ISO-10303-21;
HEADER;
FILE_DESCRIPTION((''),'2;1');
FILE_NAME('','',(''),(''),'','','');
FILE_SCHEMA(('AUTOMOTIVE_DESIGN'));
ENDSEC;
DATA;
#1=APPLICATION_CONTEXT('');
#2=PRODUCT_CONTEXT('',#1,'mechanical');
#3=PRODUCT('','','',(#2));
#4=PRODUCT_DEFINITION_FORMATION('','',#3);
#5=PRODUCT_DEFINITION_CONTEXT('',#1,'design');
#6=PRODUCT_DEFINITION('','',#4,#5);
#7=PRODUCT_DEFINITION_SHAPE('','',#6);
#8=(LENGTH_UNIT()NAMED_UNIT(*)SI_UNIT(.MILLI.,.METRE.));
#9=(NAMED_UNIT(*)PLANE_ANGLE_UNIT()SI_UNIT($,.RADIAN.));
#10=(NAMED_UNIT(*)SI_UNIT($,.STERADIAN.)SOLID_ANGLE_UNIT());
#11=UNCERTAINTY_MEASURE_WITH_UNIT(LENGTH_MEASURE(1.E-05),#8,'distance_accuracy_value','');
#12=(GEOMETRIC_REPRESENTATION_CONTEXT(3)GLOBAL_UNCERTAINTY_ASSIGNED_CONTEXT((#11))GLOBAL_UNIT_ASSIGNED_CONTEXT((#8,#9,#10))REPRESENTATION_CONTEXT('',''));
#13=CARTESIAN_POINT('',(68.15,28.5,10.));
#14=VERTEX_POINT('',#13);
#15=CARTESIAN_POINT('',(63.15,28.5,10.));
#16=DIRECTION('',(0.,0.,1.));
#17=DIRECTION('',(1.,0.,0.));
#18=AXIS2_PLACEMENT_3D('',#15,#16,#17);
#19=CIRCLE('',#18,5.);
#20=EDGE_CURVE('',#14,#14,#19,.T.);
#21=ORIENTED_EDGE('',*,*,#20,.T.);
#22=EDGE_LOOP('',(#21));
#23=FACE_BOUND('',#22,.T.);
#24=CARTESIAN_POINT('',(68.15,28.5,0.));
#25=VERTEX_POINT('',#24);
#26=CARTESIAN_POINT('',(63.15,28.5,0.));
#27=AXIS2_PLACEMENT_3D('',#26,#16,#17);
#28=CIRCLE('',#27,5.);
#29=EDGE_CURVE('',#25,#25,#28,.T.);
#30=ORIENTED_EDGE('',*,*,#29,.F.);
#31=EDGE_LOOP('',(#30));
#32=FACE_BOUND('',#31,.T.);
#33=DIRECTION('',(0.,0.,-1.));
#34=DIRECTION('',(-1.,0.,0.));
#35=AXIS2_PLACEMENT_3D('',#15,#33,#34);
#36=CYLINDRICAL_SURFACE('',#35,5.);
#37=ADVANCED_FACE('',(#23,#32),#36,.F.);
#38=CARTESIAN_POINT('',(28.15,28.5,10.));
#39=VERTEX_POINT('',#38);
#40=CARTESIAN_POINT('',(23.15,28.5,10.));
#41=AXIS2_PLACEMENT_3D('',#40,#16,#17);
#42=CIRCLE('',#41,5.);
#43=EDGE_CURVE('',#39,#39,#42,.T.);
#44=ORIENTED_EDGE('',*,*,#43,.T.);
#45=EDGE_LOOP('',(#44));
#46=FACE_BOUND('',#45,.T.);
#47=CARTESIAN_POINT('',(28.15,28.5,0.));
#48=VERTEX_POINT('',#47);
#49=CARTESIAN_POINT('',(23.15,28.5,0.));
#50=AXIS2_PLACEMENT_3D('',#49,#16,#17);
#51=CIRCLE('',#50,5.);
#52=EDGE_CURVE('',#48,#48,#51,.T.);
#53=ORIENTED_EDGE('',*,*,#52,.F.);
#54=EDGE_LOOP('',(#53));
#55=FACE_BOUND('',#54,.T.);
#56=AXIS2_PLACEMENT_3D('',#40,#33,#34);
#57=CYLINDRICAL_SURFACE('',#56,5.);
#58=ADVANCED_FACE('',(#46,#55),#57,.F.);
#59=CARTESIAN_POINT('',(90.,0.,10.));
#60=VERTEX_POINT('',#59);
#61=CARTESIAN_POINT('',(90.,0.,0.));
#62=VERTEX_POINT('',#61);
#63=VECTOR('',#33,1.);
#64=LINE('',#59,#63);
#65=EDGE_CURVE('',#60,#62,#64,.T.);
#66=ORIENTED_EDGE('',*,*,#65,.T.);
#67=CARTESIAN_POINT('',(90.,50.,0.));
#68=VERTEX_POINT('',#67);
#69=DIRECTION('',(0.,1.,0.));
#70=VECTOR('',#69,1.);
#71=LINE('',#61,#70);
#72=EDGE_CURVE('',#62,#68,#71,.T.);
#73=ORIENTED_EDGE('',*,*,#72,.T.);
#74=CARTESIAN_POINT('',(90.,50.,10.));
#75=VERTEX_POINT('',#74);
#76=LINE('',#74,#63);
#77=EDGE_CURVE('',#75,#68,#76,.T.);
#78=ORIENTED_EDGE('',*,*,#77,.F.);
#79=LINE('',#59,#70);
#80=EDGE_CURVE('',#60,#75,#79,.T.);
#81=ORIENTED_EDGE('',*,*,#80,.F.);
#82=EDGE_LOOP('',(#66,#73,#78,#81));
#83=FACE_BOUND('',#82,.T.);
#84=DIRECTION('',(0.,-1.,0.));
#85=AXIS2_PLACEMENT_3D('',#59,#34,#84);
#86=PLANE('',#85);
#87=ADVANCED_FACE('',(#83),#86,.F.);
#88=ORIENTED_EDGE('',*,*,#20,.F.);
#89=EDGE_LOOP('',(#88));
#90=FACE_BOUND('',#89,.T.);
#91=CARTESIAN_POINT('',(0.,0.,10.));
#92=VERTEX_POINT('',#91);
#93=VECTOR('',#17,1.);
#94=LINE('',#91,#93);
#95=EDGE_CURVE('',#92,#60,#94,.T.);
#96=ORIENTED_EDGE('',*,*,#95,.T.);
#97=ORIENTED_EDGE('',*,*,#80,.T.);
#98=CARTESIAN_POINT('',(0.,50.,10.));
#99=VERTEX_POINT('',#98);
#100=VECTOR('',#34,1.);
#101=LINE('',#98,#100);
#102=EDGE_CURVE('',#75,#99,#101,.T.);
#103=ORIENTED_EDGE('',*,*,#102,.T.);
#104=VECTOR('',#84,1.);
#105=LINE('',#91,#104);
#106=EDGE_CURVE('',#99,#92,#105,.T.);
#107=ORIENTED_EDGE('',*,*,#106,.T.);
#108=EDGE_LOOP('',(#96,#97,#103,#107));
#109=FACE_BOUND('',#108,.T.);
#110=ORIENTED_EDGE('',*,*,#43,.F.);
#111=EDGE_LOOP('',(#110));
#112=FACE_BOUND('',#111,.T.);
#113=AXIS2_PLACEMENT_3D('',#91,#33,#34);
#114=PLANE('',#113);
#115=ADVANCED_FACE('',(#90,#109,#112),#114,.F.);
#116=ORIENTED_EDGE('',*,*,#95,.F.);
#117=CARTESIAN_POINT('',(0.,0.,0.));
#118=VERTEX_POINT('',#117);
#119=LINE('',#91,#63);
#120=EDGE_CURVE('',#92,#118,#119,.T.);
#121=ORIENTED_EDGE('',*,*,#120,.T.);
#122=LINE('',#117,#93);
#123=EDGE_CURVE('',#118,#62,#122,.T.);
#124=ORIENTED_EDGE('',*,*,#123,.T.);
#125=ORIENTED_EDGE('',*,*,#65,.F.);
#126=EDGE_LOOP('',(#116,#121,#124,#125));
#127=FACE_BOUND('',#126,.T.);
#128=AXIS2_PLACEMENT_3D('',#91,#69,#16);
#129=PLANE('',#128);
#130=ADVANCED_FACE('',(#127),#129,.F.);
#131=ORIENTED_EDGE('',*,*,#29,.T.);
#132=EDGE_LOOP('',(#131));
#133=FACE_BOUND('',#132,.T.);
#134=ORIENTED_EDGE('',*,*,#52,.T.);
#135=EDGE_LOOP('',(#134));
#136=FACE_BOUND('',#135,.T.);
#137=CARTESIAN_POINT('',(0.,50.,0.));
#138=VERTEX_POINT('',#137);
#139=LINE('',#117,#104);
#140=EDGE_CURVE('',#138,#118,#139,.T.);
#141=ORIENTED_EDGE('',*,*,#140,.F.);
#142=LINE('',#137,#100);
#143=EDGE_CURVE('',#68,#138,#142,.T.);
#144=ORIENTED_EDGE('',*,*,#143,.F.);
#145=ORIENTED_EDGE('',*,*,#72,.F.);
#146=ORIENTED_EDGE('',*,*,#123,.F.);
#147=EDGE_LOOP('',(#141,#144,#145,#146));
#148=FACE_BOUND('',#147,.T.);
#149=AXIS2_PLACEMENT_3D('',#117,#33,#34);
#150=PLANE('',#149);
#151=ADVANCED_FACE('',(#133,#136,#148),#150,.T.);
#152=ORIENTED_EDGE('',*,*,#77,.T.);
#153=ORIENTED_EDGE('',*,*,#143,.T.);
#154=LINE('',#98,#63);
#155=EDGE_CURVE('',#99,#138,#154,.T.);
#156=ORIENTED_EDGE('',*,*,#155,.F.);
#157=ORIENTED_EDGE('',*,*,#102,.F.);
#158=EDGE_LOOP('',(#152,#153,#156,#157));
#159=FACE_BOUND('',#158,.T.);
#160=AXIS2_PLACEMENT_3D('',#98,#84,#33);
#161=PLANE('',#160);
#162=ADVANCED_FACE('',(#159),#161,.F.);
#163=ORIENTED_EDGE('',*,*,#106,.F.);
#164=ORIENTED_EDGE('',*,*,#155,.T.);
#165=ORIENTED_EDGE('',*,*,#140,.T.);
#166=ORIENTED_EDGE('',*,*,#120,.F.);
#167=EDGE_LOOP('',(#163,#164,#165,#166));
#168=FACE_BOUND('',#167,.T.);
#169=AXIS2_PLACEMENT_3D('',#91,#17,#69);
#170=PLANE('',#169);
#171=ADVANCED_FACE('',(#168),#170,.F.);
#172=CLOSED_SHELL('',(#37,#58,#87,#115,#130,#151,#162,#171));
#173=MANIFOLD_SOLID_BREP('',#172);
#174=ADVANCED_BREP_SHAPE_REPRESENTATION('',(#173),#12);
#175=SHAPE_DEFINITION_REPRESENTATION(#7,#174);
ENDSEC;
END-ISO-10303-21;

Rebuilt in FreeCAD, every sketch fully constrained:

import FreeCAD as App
import Part
import Sketcher
Q = App.Units.Quantity


def add_polygon(sketch, points):
    """Adds a closed chain of lines whose ends are joined by coincident constraints."""
    first, n = sketch.GeometryCount, len(points)
    for a, b in zip(points, points[1:] + points[:1]):
        sketch.addGeometry(Part.LineSegment(App.Vector(*a, 0), App.Vector(*b, 0)), False)
    for i in range(n):
        sketch.addConstraint(Sketcher.Constraint("Coincident", first + i, 2, first + (i + 1) % n, 1))

doc = App.newDocument("Part")
body = doc.addObject("PartDesign::Body", "Body")

# Sketch on XY plane
sketch1 = body.newObject("Sketcher::SketchObject", "Sketch")
sketch1.AttachmentSupport = (doc.getObject("XY_Plane"), [""])
sketch1.MapMode = "FlatFace"
add_polygon(sketch1, [(0, 50), (0, 0), (90, 0), (90, 50)])  # lines 0-3
sketch1.addGeometry(Part.Circle(App.Vector(23, 28, 0), App.Vector(0, 0, 1), 5), False)  # 4
sketch1.addGeometry(Part.Circle(App.Vector(63, 28, 0), App.Vector(0, 0, 1), 5), False)  # 5
sketch1.addConstraint(Sketcher.Constraint("Vertical", 0))
sketch1.addConstraint(Sketcher.Constraint("Horizontal", 1))
sketch1.addConstraint(Sketcher.Constraint("Vertical", 2))
sketch1.addConstraint(Sketcher.Constraint("Horizontal", 3))
sketch1.addConstraint(Sketcher.Constraint("Coincident", 0, 2, -1, 1))
sketch1.addConstraint(Sketcher.Constraint("Equal", 4, 5))
sketch1.addConstraint(Sketcher.Constraint("Horizontal", 4, 3, 5, 3))
sketch1.addConstraint(Sketcher.Constraint("Diameter", 4, Q("10 mm")))
sketch1.addConstraint(Sketcher.Constraint("DistanceX", 1, 1, 1, 2, Q("90 mm")))
sketch1.addConstraint(Sketcher.Constraint("DistanceY", 0, 2, 0, 1, Q("50 mm")))
sketch1.addConstraint(Sketcher.Constraint("DistanceX", 4, 3, 5, 3, Q("40 mm")))
sketch1.addConstraint(Sketcher.Constraint("DistanceY", -1, 1, 4, 3, Q("28.5 mm")))
sketch1.addConstraint(Sketcher.Constraint("DistanceX", -1, 1, 4, 3, Q("23.15 mm")))
pad1 = body.newObject("PartDesign::Pad", "Pad")
pad1.Profile = sketch1
pad1.Length = 10

doc.recompute()
